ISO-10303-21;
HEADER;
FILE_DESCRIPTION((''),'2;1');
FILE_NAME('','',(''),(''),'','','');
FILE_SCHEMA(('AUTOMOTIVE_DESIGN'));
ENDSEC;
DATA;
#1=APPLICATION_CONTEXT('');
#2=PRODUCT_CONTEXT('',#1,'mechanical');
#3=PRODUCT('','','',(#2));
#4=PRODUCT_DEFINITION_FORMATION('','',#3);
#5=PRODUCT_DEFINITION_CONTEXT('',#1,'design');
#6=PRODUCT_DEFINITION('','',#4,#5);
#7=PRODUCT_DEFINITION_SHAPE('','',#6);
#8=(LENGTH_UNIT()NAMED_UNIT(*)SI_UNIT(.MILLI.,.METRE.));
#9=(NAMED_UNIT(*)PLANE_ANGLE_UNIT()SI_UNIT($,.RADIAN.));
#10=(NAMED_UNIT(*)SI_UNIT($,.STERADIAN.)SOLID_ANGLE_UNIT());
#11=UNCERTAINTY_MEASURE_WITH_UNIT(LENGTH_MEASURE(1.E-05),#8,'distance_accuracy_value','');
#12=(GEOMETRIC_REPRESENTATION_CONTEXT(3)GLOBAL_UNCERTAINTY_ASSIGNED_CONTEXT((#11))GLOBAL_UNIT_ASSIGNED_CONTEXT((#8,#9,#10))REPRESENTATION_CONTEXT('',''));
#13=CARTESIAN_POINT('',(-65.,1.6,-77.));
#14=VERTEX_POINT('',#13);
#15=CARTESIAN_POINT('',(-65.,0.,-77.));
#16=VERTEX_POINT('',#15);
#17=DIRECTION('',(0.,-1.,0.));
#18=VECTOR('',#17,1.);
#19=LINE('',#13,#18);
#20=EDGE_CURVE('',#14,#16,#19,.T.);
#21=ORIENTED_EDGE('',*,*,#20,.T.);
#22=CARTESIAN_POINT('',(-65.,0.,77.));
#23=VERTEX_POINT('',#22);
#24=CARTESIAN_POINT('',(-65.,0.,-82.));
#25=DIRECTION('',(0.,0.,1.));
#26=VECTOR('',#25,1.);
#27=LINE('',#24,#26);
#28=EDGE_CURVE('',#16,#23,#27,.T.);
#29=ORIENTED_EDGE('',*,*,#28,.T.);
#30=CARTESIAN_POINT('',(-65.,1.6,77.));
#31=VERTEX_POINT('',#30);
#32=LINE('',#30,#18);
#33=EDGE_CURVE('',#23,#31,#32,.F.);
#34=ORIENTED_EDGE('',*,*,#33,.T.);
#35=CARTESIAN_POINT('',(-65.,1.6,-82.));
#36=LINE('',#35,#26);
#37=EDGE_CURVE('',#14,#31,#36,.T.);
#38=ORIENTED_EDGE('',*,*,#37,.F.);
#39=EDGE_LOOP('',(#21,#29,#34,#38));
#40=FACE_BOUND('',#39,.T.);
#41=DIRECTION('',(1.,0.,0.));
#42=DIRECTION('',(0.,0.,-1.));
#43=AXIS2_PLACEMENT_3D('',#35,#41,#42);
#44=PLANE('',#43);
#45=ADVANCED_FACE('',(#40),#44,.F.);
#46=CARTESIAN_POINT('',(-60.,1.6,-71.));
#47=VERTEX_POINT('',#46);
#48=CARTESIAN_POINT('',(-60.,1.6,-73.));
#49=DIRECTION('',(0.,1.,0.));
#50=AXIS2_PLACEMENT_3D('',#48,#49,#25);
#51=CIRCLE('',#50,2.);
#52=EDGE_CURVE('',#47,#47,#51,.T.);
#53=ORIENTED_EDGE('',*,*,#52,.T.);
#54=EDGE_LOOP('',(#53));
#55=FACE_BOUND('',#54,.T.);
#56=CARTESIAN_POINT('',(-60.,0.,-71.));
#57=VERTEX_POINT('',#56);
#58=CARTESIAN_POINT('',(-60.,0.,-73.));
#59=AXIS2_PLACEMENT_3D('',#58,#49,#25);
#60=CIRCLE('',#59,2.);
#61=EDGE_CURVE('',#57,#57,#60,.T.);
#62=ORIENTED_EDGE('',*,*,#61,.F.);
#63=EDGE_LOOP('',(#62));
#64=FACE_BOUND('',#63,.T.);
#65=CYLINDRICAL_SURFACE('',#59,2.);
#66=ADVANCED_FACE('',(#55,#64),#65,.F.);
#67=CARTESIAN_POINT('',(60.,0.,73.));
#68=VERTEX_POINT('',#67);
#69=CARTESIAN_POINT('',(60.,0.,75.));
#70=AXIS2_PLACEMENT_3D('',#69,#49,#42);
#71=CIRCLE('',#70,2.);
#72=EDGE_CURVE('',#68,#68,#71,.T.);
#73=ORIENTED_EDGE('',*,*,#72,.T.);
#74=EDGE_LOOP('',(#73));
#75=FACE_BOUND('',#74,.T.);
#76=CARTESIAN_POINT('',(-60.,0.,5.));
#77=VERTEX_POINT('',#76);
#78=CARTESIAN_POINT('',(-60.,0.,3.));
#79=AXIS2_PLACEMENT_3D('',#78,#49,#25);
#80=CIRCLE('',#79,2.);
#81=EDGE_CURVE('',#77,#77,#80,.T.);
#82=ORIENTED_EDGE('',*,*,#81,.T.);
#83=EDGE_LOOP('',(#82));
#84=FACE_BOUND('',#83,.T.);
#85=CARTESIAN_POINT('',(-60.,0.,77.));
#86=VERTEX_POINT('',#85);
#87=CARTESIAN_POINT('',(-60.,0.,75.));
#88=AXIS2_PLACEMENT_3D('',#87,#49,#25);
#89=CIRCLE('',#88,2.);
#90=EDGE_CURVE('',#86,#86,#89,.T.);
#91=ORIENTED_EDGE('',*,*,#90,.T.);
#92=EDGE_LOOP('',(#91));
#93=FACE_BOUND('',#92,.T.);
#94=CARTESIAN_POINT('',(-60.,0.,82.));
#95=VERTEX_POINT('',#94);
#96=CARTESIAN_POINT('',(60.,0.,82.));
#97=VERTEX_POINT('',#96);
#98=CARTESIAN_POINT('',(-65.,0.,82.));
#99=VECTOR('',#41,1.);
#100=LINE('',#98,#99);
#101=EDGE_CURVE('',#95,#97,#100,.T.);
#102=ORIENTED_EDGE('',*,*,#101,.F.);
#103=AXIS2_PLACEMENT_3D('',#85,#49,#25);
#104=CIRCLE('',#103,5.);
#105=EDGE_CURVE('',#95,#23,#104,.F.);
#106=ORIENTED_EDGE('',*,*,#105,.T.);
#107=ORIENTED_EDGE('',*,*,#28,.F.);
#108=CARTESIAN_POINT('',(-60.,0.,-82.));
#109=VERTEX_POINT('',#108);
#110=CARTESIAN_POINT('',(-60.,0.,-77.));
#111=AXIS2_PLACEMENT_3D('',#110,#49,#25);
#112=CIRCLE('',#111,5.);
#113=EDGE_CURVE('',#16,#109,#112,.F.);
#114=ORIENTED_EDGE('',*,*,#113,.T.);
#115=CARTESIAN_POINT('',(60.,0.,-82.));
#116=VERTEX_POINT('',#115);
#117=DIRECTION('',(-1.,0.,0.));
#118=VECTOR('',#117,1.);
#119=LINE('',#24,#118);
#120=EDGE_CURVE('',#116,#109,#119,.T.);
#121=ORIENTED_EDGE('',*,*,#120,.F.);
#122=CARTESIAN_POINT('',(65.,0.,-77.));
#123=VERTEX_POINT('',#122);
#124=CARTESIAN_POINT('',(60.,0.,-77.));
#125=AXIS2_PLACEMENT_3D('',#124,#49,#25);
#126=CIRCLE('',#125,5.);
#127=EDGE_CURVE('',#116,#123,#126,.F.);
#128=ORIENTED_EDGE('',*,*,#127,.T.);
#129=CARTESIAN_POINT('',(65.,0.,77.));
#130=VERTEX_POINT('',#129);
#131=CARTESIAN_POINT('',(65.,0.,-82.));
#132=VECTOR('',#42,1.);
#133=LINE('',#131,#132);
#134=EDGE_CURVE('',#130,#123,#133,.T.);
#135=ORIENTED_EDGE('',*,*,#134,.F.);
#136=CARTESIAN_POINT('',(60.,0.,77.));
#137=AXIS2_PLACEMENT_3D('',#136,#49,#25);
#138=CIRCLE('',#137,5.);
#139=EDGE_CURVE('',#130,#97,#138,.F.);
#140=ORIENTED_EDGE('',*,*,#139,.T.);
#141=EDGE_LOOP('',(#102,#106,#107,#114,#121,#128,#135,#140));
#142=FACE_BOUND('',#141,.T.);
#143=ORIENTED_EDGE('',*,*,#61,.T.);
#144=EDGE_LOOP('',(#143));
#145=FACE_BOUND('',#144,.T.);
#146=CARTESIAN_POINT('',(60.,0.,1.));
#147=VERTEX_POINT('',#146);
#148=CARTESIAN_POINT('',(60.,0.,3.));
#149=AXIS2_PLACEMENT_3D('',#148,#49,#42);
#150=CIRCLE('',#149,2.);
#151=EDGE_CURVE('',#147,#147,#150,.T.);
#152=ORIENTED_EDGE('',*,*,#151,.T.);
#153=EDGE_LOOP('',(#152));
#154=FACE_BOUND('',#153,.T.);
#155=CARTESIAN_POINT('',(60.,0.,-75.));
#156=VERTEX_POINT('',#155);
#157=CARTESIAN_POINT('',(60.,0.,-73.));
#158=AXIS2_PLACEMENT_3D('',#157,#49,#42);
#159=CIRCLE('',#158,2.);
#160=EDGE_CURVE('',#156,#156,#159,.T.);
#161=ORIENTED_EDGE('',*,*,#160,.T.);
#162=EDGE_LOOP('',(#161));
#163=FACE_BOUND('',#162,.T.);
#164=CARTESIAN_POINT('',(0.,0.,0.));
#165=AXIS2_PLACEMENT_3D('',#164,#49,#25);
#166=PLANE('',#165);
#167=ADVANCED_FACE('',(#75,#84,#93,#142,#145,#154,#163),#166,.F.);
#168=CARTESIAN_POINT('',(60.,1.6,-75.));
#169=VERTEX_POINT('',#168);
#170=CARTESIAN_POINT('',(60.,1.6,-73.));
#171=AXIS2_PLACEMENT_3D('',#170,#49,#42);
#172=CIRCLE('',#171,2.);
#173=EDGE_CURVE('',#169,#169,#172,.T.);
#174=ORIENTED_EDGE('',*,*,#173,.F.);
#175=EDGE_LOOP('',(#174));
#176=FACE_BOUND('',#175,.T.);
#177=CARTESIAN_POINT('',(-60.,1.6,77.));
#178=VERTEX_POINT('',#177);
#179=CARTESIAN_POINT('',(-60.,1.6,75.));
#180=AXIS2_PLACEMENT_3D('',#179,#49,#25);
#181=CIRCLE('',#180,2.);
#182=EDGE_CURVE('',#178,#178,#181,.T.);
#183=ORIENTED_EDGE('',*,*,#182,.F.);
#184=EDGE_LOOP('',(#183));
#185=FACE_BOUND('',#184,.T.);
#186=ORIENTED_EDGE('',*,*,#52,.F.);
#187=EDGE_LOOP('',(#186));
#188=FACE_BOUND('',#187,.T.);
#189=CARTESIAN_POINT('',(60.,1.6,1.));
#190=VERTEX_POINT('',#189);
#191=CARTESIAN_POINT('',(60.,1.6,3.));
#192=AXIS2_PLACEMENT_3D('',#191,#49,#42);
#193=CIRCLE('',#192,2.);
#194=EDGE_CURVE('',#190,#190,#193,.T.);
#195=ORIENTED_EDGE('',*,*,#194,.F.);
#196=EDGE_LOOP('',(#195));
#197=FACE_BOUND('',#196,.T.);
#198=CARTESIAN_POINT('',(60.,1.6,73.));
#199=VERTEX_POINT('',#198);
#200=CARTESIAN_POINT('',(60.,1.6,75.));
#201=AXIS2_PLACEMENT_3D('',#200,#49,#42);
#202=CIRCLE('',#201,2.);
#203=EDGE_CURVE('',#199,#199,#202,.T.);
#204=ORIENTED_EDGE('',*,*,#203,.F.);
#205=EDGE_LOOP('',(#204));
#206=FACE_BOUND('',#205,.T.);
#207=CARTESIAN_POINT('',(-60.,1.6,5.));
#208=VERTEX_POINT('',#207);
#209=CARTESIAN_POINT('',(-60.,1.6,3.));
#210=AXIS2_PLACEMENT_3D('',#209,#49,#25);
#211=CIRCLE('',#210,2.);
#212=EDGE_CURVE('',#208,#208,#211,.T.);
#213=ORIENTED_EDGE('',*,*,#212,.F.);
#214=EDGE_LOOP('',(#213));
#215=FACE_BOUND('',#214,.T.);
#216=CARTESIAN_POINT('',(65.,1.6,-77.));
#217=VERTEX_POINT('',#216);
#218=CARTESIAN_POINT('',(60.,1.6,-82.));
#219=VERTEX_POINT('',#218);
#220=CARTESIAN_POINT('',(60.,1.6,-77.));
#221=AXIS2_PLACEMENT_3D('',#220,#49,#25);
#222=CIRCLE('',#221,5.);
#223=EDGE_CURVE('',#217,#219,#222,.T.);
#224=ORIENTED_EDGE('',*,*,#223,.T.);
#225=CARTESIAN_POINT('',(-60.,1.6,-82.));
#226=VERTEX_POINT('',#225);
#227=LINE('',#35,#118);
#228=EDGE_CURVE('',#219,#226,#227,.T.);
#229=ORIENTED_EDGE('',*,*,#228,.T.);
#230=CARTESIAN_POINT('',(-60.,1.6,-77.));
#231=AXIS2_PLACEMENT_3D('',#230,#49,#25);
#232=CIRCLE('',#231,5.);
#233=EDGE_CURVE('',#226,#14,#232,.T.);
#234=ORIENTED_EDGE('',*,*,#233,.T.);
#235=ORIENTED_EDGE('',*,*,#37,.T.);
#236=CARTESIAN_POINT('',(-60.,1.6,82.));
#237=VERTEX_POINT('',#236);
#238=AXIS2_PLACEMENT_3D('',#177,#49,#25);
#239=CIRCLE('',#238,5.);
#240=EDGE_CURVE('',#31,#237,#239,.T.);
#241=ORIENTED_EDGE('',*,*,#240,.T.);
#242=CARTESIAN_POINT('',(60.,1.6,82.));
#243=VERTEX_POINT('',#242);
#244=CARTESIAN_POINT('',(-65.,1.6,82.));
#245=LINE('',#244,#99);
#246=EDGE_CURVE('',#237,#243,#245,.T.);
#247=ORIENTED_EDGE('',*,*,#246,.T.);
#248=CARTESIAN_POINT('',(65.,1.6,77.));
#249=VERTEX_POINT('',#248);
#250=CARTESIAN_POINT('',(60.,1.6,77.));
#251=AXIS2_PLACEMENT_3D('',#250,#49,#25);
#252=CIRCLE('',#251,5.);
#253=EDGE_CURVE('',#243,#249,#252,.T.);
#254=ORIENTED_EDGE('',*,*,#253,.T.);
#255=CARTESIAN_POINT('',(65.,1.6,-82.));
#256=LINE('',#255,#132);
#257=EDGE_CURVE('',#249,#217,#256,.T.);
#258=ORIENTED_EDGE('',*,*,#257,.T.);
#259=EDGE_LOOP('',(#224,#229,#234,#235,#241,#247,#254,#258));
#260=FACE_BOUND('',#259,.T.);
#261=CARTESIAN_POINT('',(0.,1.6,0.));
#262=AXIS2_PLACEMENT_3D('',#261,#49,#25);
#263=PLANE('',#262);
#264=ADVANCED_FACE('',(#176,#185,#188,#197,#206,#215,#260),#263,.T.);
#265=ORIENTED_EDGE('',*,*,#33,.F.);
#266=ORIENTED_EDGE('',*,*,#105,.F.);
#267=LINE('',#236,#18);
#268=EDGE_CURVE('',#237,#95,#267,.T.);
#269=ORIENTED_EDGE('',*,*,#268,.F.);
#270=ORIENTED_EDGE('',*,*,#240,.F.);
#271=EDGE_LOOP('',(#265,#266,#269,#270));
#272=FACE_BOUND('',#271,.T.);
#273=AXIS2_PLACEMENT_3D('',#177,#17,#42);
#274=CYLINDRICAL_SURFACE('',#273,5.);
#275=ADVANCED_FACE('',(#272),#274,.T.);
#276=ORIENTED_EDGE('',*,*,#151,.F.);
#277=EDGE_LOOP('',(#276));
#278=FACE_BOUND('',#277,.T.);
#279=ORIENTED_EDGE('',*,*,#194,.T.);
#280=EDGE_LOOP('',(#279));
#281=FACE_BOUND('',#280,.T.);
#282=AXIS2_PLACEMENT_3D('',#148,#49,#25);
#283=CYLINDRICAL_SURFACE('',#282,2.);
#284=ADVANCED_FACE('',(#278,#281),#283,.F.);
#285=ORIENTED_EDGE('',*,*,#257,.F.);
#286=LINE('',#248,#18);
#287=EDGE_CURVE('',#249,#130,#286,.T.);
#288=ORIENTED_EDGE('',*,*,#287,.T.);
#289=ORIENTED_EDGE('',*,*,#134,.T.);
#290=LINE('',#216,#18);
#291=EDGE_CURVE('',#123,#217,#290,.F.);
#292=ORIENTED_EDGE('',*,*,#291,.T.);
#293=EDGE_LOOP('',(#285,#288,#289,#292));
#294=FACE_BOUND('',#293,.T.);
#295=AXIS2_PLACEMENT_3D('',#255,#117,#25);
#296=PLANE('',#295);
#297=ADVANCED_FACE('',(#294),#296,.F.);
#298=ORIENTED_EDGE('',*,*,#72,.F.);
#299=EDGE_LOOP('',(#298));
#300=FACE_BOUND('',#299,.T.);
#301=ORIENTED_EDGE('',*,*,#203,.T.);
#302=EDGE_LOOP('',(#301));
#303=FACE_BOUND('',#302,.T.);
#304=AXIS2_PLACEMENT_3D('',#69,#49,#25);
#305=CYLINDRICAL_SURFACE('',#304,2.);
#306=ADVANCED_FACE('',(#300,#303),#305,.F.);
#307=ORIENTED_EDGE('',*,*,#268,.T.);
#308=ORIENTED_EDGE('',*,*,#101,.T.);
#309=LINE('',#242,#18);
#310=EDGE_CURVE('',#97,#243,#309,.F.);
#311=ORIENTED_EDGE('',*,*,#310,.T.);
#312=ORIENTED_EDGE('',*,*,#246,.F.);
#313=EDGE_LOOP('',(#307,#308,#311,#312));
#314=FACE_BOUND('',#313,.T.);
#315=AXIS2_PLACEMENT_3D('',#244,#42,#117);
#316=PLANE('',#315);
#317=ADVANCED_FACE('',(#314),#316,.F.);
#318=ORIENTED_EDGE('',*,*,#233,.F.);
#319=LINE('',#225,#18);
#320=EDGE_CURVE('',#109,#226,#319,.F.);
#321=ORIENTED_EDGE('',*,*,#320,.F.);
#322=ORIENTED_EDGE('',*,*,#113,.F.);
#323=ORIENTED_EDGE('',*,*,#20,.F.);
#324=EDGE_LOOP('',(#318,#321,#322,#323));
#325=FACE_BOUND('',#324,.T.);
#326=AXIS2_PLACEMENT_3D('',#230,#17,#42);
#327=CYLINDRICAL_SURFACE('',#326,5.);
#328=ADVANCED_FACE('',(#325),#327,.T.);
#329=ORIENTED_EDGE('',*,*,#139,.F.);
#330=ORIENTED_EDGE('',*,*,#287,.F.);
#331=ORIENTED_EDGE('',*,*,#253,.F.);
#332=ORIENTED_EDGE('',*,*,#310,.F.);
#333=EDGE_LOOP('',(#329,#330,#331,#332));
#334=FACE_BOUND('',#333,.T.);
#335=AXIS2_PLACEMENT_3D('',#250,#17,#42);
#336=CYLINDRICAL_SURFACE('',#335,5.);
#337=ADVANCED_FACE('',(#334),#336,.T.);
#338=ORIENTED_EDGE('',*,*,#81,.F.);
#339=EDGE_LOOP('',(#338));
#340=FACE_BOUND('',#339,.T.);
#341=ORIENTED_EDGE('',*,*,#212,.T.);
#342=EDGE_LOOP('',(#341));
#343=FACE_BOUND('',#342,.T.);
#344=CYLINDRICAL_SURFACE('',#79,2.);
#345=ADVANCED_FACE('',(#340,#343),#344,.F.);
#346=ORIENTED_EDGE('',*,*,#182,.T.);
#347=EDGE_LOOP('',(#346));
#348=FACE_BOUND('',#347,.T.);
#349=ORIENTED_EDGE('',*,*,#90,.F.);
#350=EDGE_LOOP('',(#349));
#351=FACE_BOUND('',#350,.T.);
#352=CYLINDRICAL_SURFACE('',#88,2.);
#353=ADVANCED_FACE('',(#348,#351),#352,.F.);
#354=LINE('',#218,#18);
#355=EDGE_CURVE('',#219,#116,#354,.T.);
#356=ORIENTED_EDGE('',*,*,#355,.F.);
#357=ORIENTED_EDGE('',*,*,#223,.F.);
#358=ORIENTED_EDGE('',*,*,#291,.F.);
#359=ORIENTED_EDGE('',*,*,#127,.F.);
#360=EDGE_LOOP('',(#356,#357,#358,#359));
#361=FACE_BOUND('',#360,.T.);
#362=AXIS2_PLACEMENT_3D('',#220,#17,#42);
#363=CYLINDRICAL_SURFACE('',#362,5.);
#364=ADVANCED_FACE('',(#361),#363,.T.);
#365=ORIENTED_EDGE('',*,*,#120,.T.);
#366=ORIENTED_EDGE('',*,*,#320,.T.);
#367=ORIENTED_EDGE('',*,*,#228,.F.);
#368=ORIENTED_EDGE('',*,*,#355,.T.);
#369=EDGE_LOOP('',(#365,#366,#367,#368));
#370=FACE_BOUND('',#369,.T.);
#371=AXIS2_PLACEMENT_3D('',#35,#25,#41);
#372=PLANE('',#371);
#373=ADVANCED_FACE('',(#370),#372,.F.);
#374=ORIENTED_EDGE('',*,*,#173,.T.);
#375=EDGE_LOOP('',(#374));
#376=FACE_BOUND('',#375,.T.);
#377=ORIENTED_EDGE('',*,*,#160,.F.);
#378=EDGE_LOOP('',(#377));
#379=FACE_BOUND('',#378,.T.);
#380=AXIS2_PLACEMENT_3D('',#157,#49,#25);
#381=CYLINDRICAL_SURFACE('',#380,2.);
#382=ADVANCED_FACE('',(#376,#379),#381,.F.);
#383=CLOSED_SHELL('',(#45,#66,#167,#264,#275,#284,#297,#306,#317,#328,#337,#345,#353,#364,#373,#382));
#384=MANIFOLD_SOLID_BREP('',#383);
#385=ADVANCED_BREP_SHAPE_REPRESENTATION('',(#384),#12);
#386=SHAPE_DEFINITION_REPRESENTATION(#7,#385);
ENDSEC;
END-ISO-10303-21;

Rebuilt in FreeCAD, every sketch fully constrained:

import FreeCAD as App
import Part
import Sketcher
from FreeCAD import Vector


def edges_at(feature, points):
    """Names of the edges that pass closest to the given points."""
    edges = feature.Shape.Edges
    near = lambda p: min(range(len(edges)), key=lambda i: edges[i].distToShape(Part.Vertex(*p))[0])
    return sorted({f"Edge{near(p) + 1}" for p in points})


def add_polygon(sketch, points):
    """Adds a closed chain of lines whose ends are joined by coincident constraints."""
    first, n = sketch.GeometryCount, len(points)
    for a, b in zip(points, points[1:] + points[:1]):
        sketch.addGeometry(Part.LineSegment(App.Vector(*a, 0), App.Vector(*b, 0)), False)
    for i in range(n):
        sketch.addConstraint(Sketcher.Constraint("Coincident", first + i, 2, first + (i + 1) % n, 1))

doc = App.newDocument("Part")
body = doc.addObject("PartDesign::Body", "Body")

# Sketch on XZ plane
sketch1 = doc.addObject("Sketcher::SketchObject", "Sketch")
body.addObject(sketch1)
sketch1.AttachmentSupport = (doc.XZ_Plane, [""])
sketch1.MapMode = "FlatFace"
add_polygon(sketch1, [(-65, -82), (-65, 82), (65, 82), (65, -82)])  # lines 0-3
sketch1.addConstraint([
    Sketcher.Constraint("Vertical", 0),
    Sketcher.Constraint("Horizontal", 1),
    Sketcher.Constraint("Vertical", 2),
    Sketcher.Constraint("Horizontal", 3),
    Sketcher.Constraint("Symmetric", 0, 2, 2, 2, -1, 1),
    Sketcher.Constraint("DistanceX", 1, 1, 1, 2, 130.0),
    Sketcher.Constraint("DistanceY", 0, 1, 0, 2, 164.0),
])
pad1 = doc.addObject("PartDesign::Pad", "Pad")
body.addObject(pad1)
pad1.Profile = sketch1
pad1.Length = 1.6
pad1.Reversed = True

# Sketch on XZ plane
sketch2 = doc.addObject("Sketcher::SketchObject", "Sketch001")
body.addObject(sketch2)
sketch2.AttachmentSupport = (doc.XZ_Plane, [""])
sketch2.MapMode = "FlatFace"
sketch2.AttachmentOffset = App.Placement(Vector(0, 0, -1.6), App.Rotation())
sketch2.addGeometry([
    Part.Circle(Vector(-60, -73, 0), Vector(0, 0, 1), 2),  # 0
    Part.Circle(Vector(-60, 3, 0), Vector(0, 0, 1), 2),  # 1
    Part.Circle(Vector(-60, 75, 0), Vector(0, 0, 1), 2),  # 2
    Part.Circle(Vector(60, 75, 0), Vector(0, 0, 1), 2),  # 3
    Part.Circle(Vector(60, 3, 0), Vector(0, 0, 1), 2),  # 4
    Part.Circle(Vector(60, -73, 0), Vector(0, 0, 1), 2),  # 5
], False)
sketch2.addConstraint([
    Sketcher.Constraint("Equal", 0, 1),
    Sketcher.Constraint("Equal", 1, 2),
    Sketcher.Constraint("Equal", 2, 3),
    Sketcher.Constraint("Equal", 3, 4),
    Sketcher.Constraint("Equal", 4, 5),
    Sketcher.Constraint("Symmetric", 2, 3, 3, 3, -2),
    Sketcher.Constraint("Symmetric", 1, 3, 4, 3, -2),
    Sketcher.Constraint("Symmetric", 0, 3, 5, 3, -2),
    Sketcher.Constraint("Vertical", 0, 3, 1, 3),
    Sketcher.Constraint("Vertical", 1, 3, 2, 3),
    Sketcher.Constraint("Diameter", 0, 4.0),
    Sketcher.Constraint("DistanceX", 0, 3, -1, 1, 60.0),
    Sketcher.Constraint("DistanceY", 0, 3, -1, 1, 73.0),
    Sketcher.Constraint("DistanceY", -1, 1, 1, 3, 3.0),
    Sketcher.Constraint("DistanceY", -1, 1, 2, 3, 75.0),
])
pocket1 = doc.addObject("PartDesign::Pocket", "Pocket")
body.addObject(pocket1)
pocket1.Profile = sketch2
pocket1.Type = "ThroughAll"
pocket1.Reversed = True
doc.recompute()

fillet = doc.addObject("PartDesign::Fillet", "Fillet")
body.addObject(fillet)
fillet.Base = (pocket1, edges_at(pocket1, [
    (65, 0.8, 82),
    (-65, 0.8, 82),
    (-65, 0.8, -82),
    (65, 0.8, -82),
]))
fillet.Radius = 5

doc.recompute()
